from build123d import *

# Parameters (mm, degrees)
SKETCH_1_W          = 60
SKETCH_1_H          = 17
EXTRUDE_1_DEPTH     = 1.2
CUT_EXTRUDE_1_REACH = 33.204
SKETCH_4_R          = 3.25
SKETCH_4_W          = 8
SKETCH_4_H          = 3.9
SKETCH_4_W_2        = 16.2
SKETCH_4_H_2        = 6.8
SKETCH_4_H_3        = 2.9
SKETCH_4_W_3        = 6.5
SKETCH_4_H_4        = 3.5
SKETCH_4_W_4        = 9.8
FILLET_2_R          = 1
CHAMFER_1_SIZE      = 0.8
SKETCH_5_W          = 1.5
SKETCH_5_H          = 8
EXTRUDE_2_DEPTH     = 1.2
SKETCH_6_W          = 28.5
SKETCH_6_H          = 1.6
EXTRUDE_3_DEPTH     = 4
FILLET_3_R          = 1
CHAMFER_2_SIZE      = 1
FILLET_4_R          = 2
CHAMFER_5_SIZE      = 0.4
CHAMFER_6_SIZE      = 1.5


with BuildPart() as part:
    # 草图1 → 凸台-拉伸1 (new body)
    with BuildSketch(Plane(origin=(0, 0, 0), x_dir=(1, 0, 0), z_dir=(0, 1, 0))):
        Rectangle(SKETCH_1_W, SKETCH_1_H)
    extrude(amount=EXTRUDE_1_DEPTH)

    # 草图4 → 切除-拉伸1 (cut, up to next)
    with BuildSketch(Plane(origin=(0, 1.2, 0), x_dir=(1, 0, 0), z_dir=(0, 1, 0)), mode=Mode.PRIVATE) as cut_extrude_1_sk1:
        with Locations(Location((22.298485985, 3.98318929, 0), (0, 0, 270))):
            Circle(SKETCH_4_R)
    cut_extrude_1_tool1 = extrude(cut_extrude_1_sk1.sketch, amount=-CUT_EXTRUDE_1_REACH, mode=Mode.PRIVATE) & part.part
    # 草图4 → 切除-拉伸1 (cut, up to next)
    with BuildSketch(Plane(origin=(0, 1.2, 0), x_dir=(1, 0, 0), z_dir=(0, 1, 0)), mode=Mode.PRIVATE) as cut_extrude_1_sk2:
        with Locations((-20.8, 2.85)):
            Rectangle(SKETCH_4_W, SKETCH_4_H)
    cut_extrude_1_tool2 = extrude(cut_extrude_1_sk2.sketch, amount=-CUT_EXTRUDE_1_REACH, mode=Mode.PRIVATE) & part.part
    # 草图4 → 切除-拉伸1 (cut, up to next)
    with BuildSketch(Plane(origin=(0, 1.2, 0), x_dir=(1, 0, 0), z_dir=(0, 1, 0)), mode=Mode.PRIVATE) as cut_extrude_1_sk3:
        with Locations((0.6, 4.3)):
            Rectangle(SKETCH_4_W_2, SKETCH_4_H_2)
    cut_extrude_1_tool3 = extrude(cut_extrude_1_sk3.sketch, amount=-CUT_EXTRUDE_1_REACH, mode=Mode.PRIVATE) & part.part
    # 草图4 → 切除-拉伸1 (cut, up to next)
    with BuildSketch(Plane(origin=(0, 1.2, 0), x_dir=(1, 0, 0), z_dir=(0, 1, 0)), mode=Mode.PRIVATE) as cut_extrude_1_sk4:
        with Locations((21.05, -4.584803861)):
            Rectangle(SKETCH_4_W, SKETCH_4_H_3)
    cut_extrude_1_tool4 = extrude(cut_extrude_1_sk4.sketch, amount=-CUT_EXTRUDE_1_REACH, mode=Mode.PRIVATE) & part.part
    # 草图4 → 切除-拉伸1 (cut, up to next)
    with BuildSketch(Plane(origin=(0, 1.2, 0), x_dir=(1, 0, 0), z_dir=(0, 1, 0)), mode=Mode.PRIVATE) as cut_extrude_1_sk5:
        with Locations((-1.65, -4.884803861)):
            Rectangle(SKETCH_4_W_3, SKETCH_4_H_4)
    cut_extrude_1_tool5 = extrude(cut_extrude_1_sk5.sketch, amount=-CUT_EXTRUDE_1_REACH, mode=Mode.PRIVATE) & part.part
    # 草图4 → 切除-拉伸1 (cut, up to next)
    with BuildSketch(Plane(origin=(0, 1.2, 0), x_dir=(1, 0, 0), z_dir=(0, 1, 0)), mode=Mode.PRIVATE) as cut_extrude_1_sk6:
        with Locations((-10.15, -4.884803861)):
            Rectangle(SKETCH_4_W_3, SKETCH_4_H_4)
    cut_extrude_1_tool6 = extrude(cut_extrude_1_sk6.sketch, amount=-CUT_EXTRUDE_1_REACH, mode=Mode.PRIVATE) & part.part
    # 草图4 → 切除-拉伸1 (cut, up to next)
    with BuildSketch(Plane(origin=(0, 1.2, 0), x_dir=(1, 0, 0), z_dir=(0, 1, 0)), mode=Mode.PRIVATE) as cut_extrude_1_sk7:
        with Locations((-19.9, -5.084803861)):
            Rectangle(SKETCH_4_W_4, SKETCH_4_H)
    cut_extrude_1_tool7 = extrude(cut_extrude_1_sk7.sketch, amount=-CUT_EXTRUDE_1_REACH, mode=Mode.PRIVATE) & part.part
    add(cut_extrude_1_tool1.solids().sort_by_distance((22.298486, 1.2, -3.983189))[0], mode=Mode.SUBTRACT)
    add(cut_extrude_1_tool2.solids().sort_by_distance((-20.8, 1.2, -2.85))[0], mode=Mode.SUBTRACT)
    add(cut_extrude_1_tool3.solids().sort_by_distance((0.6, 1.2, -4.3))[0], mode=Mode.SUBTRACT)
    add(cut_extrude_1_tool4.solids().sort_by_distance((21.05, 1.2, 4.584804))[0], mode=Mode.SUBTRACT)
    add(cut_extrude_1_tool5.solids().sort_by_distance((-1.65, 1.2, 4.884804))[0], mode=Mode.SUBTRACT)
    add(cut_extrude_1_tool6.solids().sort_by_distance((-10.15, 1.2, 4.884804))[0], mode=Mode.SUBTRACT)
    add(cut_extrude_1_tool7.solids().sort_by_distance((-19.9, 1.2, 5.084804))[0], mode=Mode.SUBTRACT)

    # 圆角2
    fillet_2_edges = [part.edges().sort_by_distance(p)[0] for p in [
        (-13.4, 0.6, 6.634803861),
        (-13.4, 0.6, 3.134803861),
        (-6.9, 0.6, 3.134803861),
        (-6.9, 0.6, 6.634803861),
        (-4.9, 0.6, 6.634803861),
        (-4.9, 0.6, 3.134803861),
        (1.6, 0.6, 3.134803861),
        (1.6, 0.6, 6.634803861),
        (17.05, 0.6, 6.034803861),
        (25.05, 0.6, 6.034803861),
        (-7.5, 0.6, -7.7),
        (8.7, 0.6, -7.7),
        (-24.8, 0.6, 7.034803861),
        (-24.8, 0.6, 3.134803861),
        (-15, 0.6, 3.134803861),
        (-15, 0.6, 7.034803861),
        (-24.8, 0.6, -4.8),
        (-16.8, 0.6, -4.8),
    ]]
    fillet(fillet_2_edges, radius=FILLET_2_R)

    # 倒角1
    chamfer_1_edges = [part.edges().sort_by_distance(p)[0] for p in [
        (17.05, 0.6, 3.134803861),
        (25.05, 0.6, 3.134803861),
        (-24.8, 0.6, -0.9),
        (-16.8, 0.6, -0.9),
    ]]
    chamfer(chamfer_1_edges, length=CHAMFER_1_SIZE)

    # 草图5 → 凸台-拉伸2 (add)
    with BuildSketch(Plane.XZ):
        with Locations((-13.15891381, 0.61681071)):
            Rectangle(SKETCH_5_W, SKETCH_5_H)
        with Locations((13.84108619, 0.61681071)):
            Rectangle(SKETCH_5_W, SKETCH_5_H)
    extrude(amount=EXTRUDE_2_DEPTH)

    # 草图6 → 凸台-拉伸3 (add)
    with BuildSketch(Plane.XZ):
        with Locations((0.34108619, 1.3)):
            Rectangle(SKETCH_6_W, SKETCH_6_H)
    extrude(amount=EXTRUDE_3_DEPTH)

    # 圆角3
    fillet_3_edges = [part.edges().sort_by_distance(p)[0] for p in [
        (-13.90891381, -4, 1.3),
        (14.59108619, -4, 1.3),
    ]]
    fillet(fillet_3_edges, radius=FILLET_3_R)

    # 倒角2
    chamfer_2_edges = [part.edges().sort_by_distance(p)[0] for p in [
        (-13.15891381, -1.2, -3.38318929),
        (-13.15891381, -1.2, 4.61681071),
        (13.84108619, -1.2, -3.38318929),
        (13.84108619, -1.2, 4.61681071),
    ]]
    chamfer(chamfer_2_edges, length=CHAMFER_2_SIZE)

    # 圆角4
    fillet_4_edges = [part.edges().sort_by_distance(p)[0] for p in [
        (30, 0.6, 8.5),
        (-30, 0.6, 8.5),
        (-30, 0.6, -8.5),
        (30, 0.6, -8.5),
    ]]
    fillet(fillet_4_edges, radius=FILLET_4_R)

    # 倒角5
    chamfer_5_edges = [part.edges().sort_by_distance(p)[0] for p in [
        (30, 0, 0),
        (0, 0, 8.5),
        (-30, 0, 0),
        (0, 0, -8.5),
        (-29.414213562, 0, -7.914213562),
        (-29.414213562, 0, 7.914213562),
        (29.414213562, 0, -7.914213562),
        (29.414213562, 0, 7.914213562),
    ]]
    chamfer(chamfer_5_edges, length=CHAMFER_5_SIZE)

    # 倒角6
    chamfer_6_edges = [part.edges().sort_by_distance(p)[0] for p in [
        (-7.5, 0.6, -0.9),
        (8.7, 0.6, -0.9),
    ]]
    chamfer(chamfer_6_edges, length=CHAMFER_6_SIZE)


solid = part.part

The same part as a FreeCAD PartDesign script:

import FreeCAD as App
import Part
import Sketcher
Q = App.Units.Quantity


def edges_at(feature, points):
    """Names of the edges that pass closest to the given points."""
    edges = feature.Shape.Edges
    near = lambda p: min(range(len(edges)), key=lambda i: edges[i].distToShape(Part.Vertex(*p))[0])
    return sorted({f"Edge{near(p) + 1}" for p in points})

doc = App.newDocument("Part")
body = doc.addObject("PartDesign::Body", "Body")

# Sketch on XZ plane
sketch1 = body.newObject("Sketcher::SketchObject", "Sketch")
sketch1.AttachmentSupport = (doc.getObject("XZ_Plane"), [""])
sketch1.MapMode = "FlatFace"
sketch1.addGeometry([
    Part.LineSegment(App.Vector(-30, -8.5, 0), App.Vector(-30, 8.5, 0)),
    Part.LineSegment(App.Vector(-30, 8.5, 0), App.Vector(30, 8.5, 0)),
    Part.LineSegment(App.Vector(30, 8.5, 0), App.Vector(30, -8.5, 0)),
    Part.LineSegment(App.Vector(30, -8.5, 0), App.Vector(-30, -8.5, 0)),
], False)
sketch1.addConstraint([
    Sketcher.Constraint("Coincident", 0, 2, 1, 1),
    Sketcher.Constraint("Coincident", 1, 2, 2, 1),
    Sketcher.Constraint("Coincident", 2, 2, 3, 1),
    Sketcher.Constraint("Coincident", 3, 2, 0, 1),
    Sketcher.Constraint("Vertical", 0),
    Sketcher.Constraint("Horizontal", 1),
    Sketcher.Constraint("Vertical", 2),
    Sketcher.Constraint("Horizontal", 3),
    Sketcher.Constraint("Symmetric", 0, 2, 2, 2, -1, 1),
    Sketcher.Constraint("DistanceX", 1, 1, 1, 2, Q("60 mm")),
    Sketcher.Constraint("DistanceY", 0, 1, 0, 2, Q("17 mm")),
])
pad1 = body.newObject("PartDesign::Pad", "Pad")
pad1.Profile = sketch1
pad1.Length = 1.2
pad1.Reversed = True

# Sketch on XZ plane
sketch2 = body.newObject("Sketcher::SketchObject", "Sketch001")
sketch2.AttachmentSupport = (doc.getObject("XZ_Plane"), [""])
sketch2.MapMode = "FlatFace"
sketch2.AttachmentOffset = App.Placement(App.Vector(0, 0, -1.2), App.Rotation())
sketch2.addGeometry(Part.Circle(App.Vector(22.298486, -3.983189, 0), App.Vector(0, 0, 1), 3.25), False)
sketch2.addConstraint([
    Sketcher.Constraint("Diameter", 0, Q("6.5 mm")),
    Sketcher.Constraint("DistanceY", 0, 3, -1, 1, Q("3.983189 mm")),
    Sketcher.Constraint("DistanceX", -1, 1, 0, 3, Q("22.298486 mm")),
])
pocket1 = body.newObject("PartDesign::Pocket", "Pocket")
pocket1.Profile = sketch2
pocket1.Type = "UpToFirst"
pocket1.Reversed = True

# Sketch on XZ plane
sketch3 = body.newObject("Sketcher::SketchObject", "Sketch002")
sketch3.AttachmentSupport = (doc.getObject("XZ_Plane"), [""])
sketch3.MapMode = "FlatFace"
sketch3.AttachmentOffset = App.Placement(App.Vector(0, 0, -1.2), App.Rotation())
sketch3.addGeometry([
    Part.LineSegment(App.Vector(-24.8, -4.8, 0), App.Vector(-24.8, -0.9, 0)),
    Part.LineSegment(App.Vector(-24.8, -0.9, 0), App.Vector(-16.8, -0.9, 0)),
    Part.LineSegment(App.Vector(-16.8, -0.9, 0), App.Vector(-16.8, -4.8, 0)),
    Part.LineSegment(App.Vector(-16.8, -4.8, 0), App.Vector(-24.8, -4.8, 0)),
], False)
sketch3.addConstraint([
    Sketcher.Constraint("Coincident", 0, 2, 1, 1),
    Sketcher.Constraint("Coincident", 1, 2, 2, 1),
    Sketcher.Constraint("Coincident", 2, 2, 3, 1),
    Sketcher.Constraint("Coincident", 3, 2, 0, 1),
    Sketcher.Constraint("Vertical", 0),
    Sketcher.Constraint("Horizontal", 1),
    Sketcher.Constraint("Vertical", 2),
    Sketcher.Constraint("Horizontal", 3),
    Sketcher.Constraint("DistanceX", 1, 1, 1, 2, Q("8 mm")),
    Sketcher.Constraint("DistanceY", 0, 1, 0, 2, Q("3.9 mm")),
    Sketcher.Constraint("DistanceX", 0, 2, -1, 1, Q("24.8 mm")),
    Sketcher.Constraint("DistanceY", 0, 2, -1, 1, Q("0.9 mm")),
])
pocket2 = body.newObject("PartDesign::Pocket", "Pocket001")
pocket2.Profile = sketch3
pocket2.Type = "UpToFirst"
pocket2.Reversed = True

# Sketch on XZ plane
sketch4 = body.newObject("Sketcher::SketchObject", "Sketch003")
sketch4.AttachmentSupport = (doc.getObject("XZ_Plane"), [""])
sketch4.MapMode = "FlatFace"
sketch4.AttachmentOffset = App.Placement(App.Vector(0, 0, -1.2), App.Rotation())
sketch4.addGeometry([
    Part.LineSegment(App.Vector(-7.5, -7.7, 0), App.Vector(-7.5, -0.9, 0)),
    Part.LineSegment(App.Vector(-7.5, -0.9, 0), App.Vector(8.7, -0.9, 0)),
    Part.LineSegment(App.Vector(8.7, -0.9, 0), App.Vector(8.7, -7.7, 0)),
    Part.LineSegment(App.Vector(8.7, -7.7, 0), App.Vector(-7.5, -7.7, 0)),
], False)
sketch4.addConstraint([
    Sketcher.Constraint("Coincident", 0, 2, 1, 1),
    Sketcher.Constraint("Coincident", 1, 2, 2, 1),
    Sketcher.Constraint("Coincident", 2, 2, 3, 1),
    Sketcher.Constraint("Coincident", 3, 2, 0, 1),
    Sketcher.Constraint("Vertical", 0),
    Sketcher.Constraint("Horizontal", 1),
    Sketcher.Constraint("Vertical", 2),
    Sketcher.Constraint("Horizontal", 3),
    Sketcher.Constraint("DistanceX", 1, 1, 1, 2, Q("16.2 mm")),
    Sketcher.Constraint("DistanceY", 0, 1, 0, 2, Q("6.8 mm")),
    Sketcher.Constraint("DistanceX", 0, 2, -1, 1, Q("7.5 mm")),
    Sketcher.Constraint("DistanceY", 0, 2, -1, 1, Q("0.9 mm")),
])
pocket3 = body.newObject("PartDesign::Pocket", "Pocket002")
pocket3.Profile = sketch4
pocket3.Type = "UpToFirst"
pocket3.Reversed = True

# Sketch on XZ plane
sketch5 = body.newObject("Sketcher::SketchObject", "Sketch004")
sketch5.AttachmentSupport = (doc.getObject("XZ_Plane"), [""])
sketch5.MapMode = "FlatFace"
sketch5.AttachmentOffset = App.Placement(App.Vector(0, 0, -1.2), App.Rotation())
sketch5.addGeometry([
    Part.LineSegment(App.Vector(17.05, 3.134804, 0), App.Vector(17.05, 6.034804, 0)),
    Part.LineSegment(App.Vector(17.05, 6.034804, 0), App.Vector(25.05, 6.034804, 0)),
    Part.LineSegment(App.Vector(25.05, 6.034804, 0), App.Vector(25.05, 3.134804, 0)),
    Part.LineSegment(App.Vector(25.05, 3.134804, 0), App.Vector(17.05, 3.134804, 0)),
], False)
sketch5.addConstraint([
    Sketcher.Constraint("Coincident", 0, 2, 1, 1),
    Sketcher.Constraint("Coincident", 1, 2, 2, 1),
    Sketcher.Constraint("Coincident", 2, 2, 3, 1),
    Sketcher.Constraint("Coincident", 3, 2, 0, 1),
    Sketcher.Constraint("Vertical", 0),
    Sketcher.Constraint("Horizontal", 1),
    Sketcher.Constraint("Vertical", 2),
    Sketcher.Constraint("Horizontal", 3),
    Sketcher.Constraint("DistanceX", 1, 1, 1, 2, Q("8 mm")),
    Sketcher.Constraint("DistanceY", 0, 1, 0, 2, Q("2.9 mm")),
    Sketcher.Constraint("DistanceX", -1, 1, 0, 2, Q("17.05 mm")),
    Sketcher.Constraint("DistanceY", -1, 1, 0, 2, Q("6.034804 mm")),
])
pocket4 = body.newObject("PartDesign::Pocket", "Pocket003")
pocket4.Profile = sketch5
pocket4.Type = "UpToFirst"
pocket4.Reversed = True

# Sketch on XZ plane
sketch6 = body.newObject("Sketcher::SketchObject", "Sketch005")
sketch6.AttachmentSupport = (doc.getObject("XZ_Plane"), [""])
sketch6.MapMode = "FlatFace"
sketch6.AttachmentOffset = App.Placement(App.Vector(0, 0, -1.2), App.Rotation())
sketch6.addGeometry([
    Part.LineSegment(App.Vector(-4.9, 3.134804, 0), App.Vector(-4.9, 6.634804, 0)),
    Part.LineSegment(App.Vector(-4.9, 6.634804, 0), App.Vector(1.6, 6.634804, 0)),
    Part.LineSegment(App.Vector(1.6, 6.634804, 0), App.Vector(1.6, 3.134804, 0)),
    Part.LineSegment(App.Vector(1.6, 3.134804, 0), App.Vector(-4.9, 3.134804, 0)),
], False)
sketch6.addConstraint([
    Sketcher.Constraint("Coincident", 0, 2, 1, 1),
    Sketcher.Constraint("Coincident", 1, 2, 2, 1),
    Sketcher.Constraint("Coincident", 2, 2, 3, 1),
    Sketcher.Constraint("Coincident", 3, 2, 0, 1),
    Sketcher.Constraint("Vertical", 0),
    Sketcher.Constraint("Horizontal", 1),
    Sketcher.Constraint("Vertical", 2),
    Sketcher.Constraint("Horizontal", 3),
    Sketcher.Constraint("DistanceX", 1, 1, 1, 2, Q("6.5 mm")),
    Sketcher.Constraint("DistanceY", 0, 1, 0, 2, Q("3.5 mm")),
    Sketcher.Constraint("DistanceX", 0, 2, -1, 1, Q("4.9 mm")),
    Sketcher.Constraint("DistanceY", -1, 1, 0, 2, Q("6.634804 mm")),
])
pocket5 = body.newObject("PartDesign::Pocket", "Pocket004")
pocket5.Profile = sketch6
pocket5.Type = "UpToFirst"
pocket5.Reversed = True

# Sketch on XZ plane
sketch7 = body.newObject("Sketcher::SketchObject", "Sketch006")
sketch7.AttachmentSupport = (doc.getObject("XZ_Plane"), [""])
sketch7.MapMode = "FlatFace"
sketch7.AttachmentOffset = App.Placement(App.Vector(0, 0, -1.2), App.Rotation())
sketch7.addGeometry([
    Part.LineSegment(App.Vector(-13.4, 3.134804, 0), App.Vector(-13.4, 6.634804, 0)),
    Part.LineSegment(App.Vector(-13.4, 6.634804, 0), App.Vector(-6.9, 6.634804, 0)),
    Part.LineSegment(App.Vector(-6.9, 6.634804, 0), App.Vector(-6.9, 3.134804, 0)),
    Part.LineSegment(App.Vector(-6.9, 3.134804, 0), App.Vector(-13.4, 3.134804, 0)),
], False)
sketch7.addConstraint([
    Sketcher.Constraint("Coincident", 0, 2, 1, 1),
    Sketcher.Constraint("Coincident", 1, 2, 2, 1),
    Sketcher.Constraint("Coincident", 2, 2, 3, 1),
    Sketcher.Constraint("Coincident", 3, 2, 0, 1),
    Sketcher.Constraint("Vertical", 0),
    Sketcher.Constraint("Horizontal", 1),
    Sketcher.Constraint("Vertical", 2),
    Sketcher.Constraint("Horizontal", 3),
    Sketcher.Constraint("DistanceX", 1, 1, 1, 2, Q("6.5 mm")),
    Sketcher.Constraint("DistanceY", 0, 1, 0, 2, Q("3.5 mm")),
    Sketcher.Constraint("DistanceX", 0, 2, -1, 1, Q("13.4 mm")),
    Sketcher.Constraint("DistanceY", -1, 1, 0, 2, Q("6.634804 mm")),
])
pocket6 = body.newObject("PartDesign::Pocket", "Pocket005")
pocket6.Profile = sketch7
pocket6.Type = "UpToFirst"
pocket6.Reversed = True

# Sketch on XZ plane
sketch8 = body.newObject("Sketcher::SketchObject", "Sketch007")
sketch8.AttachmentSupport = (doc.getObject("XZ_Plane"), [""])
sketch8.MapMode = "FlatFace"
sketch8.AttachmentOffset = App.Placement(App.Vector(0, 0, -1.2), App.Rotation())
sketch8.addGeometry([
    Part.LineSegment(App.Vector(-24.8, 3.134804, 0), App.Vector(-24.8, 7.034804, 0)),
    Part.LineSegment(App.Vector(-24.8, 7.034804, 0), App.Vector(-15, 7.034804, 0)),
    Part.LineSegment(App.Vector(-15, 7.034804, 0), App.Vector(-15, 3.134804, 0)),
    Part.LineSegment(App.Vector(-15, 3.134804, 0), App.Vector(-24.8, 3.134804, 0)),
], False)
sketch8.addConstraint([
    Sketcher.Constraint("Coincident", 0, 2, 1, 1),
    Sketcher.Constraint("Coincident", 1, 2, 2, 1),
    Sketcher.Constraint("Coincident", 2, 2, 3, 1),
    Sketcher.Constraint("Coincident", 3, 2, 0, 1),
    Sketcher.Constraint("Vertical", 0),
    Sketcher.Constraint("Horizontal", 1),
    Sketcher.Constraint("Vertical", 2),
    Sketcher.Constraint("Horizontal", 3),
    Sketcher.Constraint("DistanceX", 1, 1, 1, 2, Q("9.8 mm")),
    Sketcher.Constraint("DistanceY", 0, 1, 0, 2, Q("3.9 mm")),
    Sketcher.Constraint("DistanceX", 1, 2, -1, 1, Q("15 mm")),
    Sketcher.Constraint("DistanceY", -1, 1, 0, 2, Q("7.034804 mm")),
])
pocket7 = body.newObject("PartDesign::Pocket", "Pocket006")
pocket7.Profile = sketch8
pocket7.Type = "UpToFirst"
pocket7.Reversed = True
doc.recompute()

fillet = body.newObject("PartDesign::Fillet", "Fillet")
fillet.Base = (pocket7, edges_at(pocket7, [
    (-13.4, 0.6, 6.635),
    (-13.4, 0.6, 3.135),
    (-6.9, 0.6, 3.135),
    (-6.9, 0.6, 6.635),
    (-4.9, 0.6, 6.635),
    (-4.9, 0.6, 3.135),
    (1.6, 0.6, 3.135),
    (1.6, 0.6, 6.635),
    (17.05, 0.6, 6.035),
    (25.05, 0.6, 6.035),
    (-7.5, 0.6, -7.7),
    (8.7, 0.6, -7.7),
    (-24.8, 0.6, 7.035),
    (-24.8, 0.6, 3.135),
    (-15, 0.6, 3.135),
    (-15, 0.6, 7.035),
    (-24.8, 0.6, -4.8),
    (-16.8, 0.6, -4.8),
]))
fillet.Radius = 1
doc.recompute()

chamfer = body.newObject("PartDesign::Chamfer", "Chamfer")
chamfer.Base = (fillet, edges_at(fillet, [
    (17.05, 0.6, 3.135),
    (25.05, 0.6, 3.135),
    (-24.8, 0.6, -0.9),
    (-16.8, 0.6, -0.9),
]))
chamfer.Size = 0.8

# Sketch on XZ plane
sketch9 = body.newObject("Sketcher::SketchObject", "Sketch008")
sketch9.AttachmentSupport = (doc.getObject("XZ_Plane"), [""])
sketch9.MapMode = "FlatFace"
sketch9.addGeometry([
    Part.LineSegment(App.Vector(-13.908914, 4.616811, 0), App.Vector(-13.908914, -3.383189, 0)),  # 0
    Part.LineSegment(App.Vector(-13.908914, -3.383189, 0), App.Vector(-12.408914, -3.383189, 0)),  # 1
    Part.LineSegment(App.Vector(-12.408914, -3.383189, 0), App.Vector(-12.408914, 4.616811, 0)),  # 2
    Part.LineSegment(App.Vector(-12.408914, 4.616811, 0), App.Vector(-13.908914, 4.616811, 0)),  # 3
    Part.LineSegment(App.Vector(13.091086, 4.616811, 0), App.Vector(13.091086, -3.383189, 0)),  # 4
    Part.LineSegment(App.Vector(13.091086, -3.383189, 0), App.Vector(14.591086, -3.383189, 0)),  # 5
    Part.LineSegment(App.Vector(14.591086, -3.383189, 0), App.Vector(14.591086, 4.616811, 0)),  # 6
    Part.LineSegment(App.Vector(14.591086, 4.616811, 0), App.Vector(13.091086, 4.616811, 0)),  # 7
], False)
sketch9.addConstraint([
    Sketcher.Constraint("Coincident", 0, 2, 1, 1),
    Sketcher.Constraint("Coincident", 1, 2, 2, 1),
    Sketcher.Constraint("Coincident", 2, 2, 3, 1),
    Sketcher.Constraint("Coincident", 3, 2, 0, 1),
    Sketcher.Constraint("Coincident", 4, 2, 5, 1),
    Sketcher.Constraint("Coincident", 5, 2, 6, 1),
    Sketcher.Constraint("Coincident", 6, 2, 7, 1),
    Sketcher.Constraint("Coincident", 7, 2, 4, 1),
    Sketcher.Constraint("Vertical", 0),
    Sketcher.Constraint("Horizontal", 1),
    Sketcher.Constraint("Vertical", 2),
    Sketcher.Constraint("Horizontal", 3),
    Sketcher.Constraint("Vertical", 4),
    Sketcher.Constraint("Horizontal", 5),
    Sketcher.Constraint("Vertical", 6),
    Sketcher.Constraint("Horizontal", 7),
    Sketcher.Constraint("Horizontal", 1, 2, 4, 2),
    Sketcher.Constraint("Horizontal", 3, 2, 6, 2),
    Sketcher.Constraint("Equal", 3, 5),
    Sketcher.Constraint("DistanceY", 0, 2, 0, 1, Q("8 mm")),
    Sketcher.Constraint("DistanceX", 1, 1, 1, 2, Q("1.5 mm")),
    Sketcher.Constraint("DistanceX", 0, 2, 4, 2, Q("27 mm")),
    Sketcher.Constraint("DistanceY", 0, 2, -1, 1, Q("3.383189 mm")),
    Sketcher.Constraint("DistanceX", 0, 2, -1, 1, Q("13.908914 mm")),
])
pad2 = body.newObject("PartDesign::Pad", "Pad001")
pad2.Profile = sketch9
pad2.Length = 1.2

# Sketch on XZ plane
sketch10 = body.newObject("Sketcher::SketchObject", "Sketch009")
sketch10.AttachmentSupport = (doc.getObject("XZ_Plane"), [""])
sketch10.MapMode = "FlatFace"
sketch10.addGeometry([
    Part.LineSegment(App.Vector(-13.908914, 2.1, 0), App.Vector(-13.908914, 0.5, 0)),
    Part.LineSegment(App.Vector(-13.908914, 0.5, 0), App.Vector(14.591086, 0.5, 0)),
    Part.LineSegment(App.Vector(14.591086, 0.5, 0), App.Vector(14.591086, 2.1, 0)),
    Part.LineSegment(App.Vector(14.591086, 2.1, 0), App.Vector(-13.908914, 2.1, 0)),
], False)
sketch10.addConstraint([
    Sketcher.Constraint("Coincident", 0, 2, 1, 1),
    Sketcher.Constraint("Coincident", 1, 2, 2, 1),
    Sketcher.Constraint("Coincident", 2, 2, 3, 1),
    Sketcher.Constraint("Coincident", 3, 2, 0, 1),
    Sketcher.Constraint("Vertical", 0),
    Sketcher.Constraint("Horizontal", 1),
    Sketcher.Constraint("Vertical", 2),
    Sketcher.Constraint("Horizontal", 3),
    Sketcher.Constraint("DistanceX", 1, 1, 1, 2, Q("28.5 mm")),
    Sketcher.Constraint("DistanceY", 0, 2, 0, 1, Q("1.6 mm")),
    Sketcher.Constraint("DistanceY", -1, 1, 0, 2, Q("0.5 mm")),
    Sketcher.Constraint("DistanceX", 0, 2, -1, 1, Q("13.908914 mm")),
])
pad3 = body.newObject("PartDesign::Pad", "Pad002")
pad3.Profile = sketch10
pad3.Length = 4
doc.recompute()

fillet2 = body.newObject("PartDesign::Fillet", "Fillet001")
fillet2.Base = (pad3, edges_at(pad3, [(-13.909, -4, 1.3), (14.591, -4, 1.3)]))
fillet2.Radius = 1
doc.recompute()

chamfer2 = body.newObject("PartDesign::Chamfer", "Chamfer001")
chamfer2.Base = (fillet2, edges_at(fillet2, [
    (-13.159, -1.2, -3.383),
    (-13.159, -1.2, 4.617),
    (13.841, -1.2, -3.383),
    (13.841, -1.2, 4.617),
]))
chamfer2.Size = 1
doc.recompute()

fillet3 = body.newObject("PartDesign::Fillet", "Fillet002")
fillet3.Base = (chamfer2, edges_at(chamfer2, [
    (30, 0.6, 8.5),
    (-30, 0.6, 8.5),
    (-30, 0.6, -8.5),
    (30, 0.6, -8.5),
]))
fillet3.Radius = 2
doc.recompute()

chamfer3 = body.newObject("PartDesign::Chamfer", "Chamfer002")
chamfer3.Base = (fillet3, edges_at(fillet3, [
    (30, 0, 0),
    (0, 0, 8.5),
    (-30, 0, 0),
    (0, 0, -8.5),
    (-29.414, 0, -7.914),
    (-29.414, 0, 7.914),
    (29.414, 0, -7.914),
    (29.414, 0, 7.914),
]))
chamfer3.Size = 0.4
doc.recompute()

chamfer4 = body.newObject("PartDesign::Chamfer", "Chamfer003")
chamfer4.Base = (chamfer3, edges_at(chamfer3, [(-7.5, 0.6, -0.9), (8.7, 0.6, -0.9)]))
chamfer4.Size = 1.5

doc.recompute()
